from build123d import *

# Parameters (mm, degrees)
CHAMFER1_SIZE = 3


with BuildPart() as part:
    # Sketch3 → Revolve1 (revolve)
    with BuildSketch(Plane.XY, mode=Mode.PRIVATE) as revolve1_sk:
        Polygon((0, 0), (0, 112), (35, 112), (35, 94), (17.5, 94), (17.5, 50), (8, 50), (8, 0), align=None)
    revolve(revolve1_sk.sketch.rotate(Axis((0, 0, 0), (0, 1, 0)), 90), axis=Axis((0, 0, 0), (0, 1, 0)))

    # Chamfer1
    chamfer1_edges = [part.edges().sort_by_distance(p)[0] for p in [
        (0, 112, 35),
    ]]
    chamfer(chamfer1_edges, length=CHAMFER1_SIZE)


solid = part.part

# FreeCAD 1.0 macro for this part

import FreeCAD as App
import Part
import Sketcher
Q = App.Units.Quantity


def edges_at(feature, points):
    """Names of the edges that pass closest to the given points."""
    edges = feature.Shape.Edges
    near = lambda p: min(range(len(edges)), key=lambda i: edges[i].distToShape(Part.Vertex(*p))[0])
    return sorted({f"Edge{near(p) + 1}" for p in points})


def add_polygon(sketch, points):
    """Adds a closed chain of lines whose ends are joined by coincident constraints."""
    first, n = sketch.GeometryCount, len(points)
    for a, b in zip(points, points[1:] + points[:1]):
        sketch.addGeometry(Part.LineSegment(App.Vector(*a, 0), App.Vector(*b, 0)), False)
    for i in range(n):
        sketch.addConstraint(Sketcher.Constraint("Coincident", first + i, 2, first + (i + 1) % n, 1))

doc = App.newDocument("Part")
body = doc.addObject("PartDesign::Body", "Body")

sketch1 = doc.addObject("Sketcher::SketchObject", "Sketch")
body.addObject(sketch1)
sketch1.AttachmentSupport = (doc.XY_Plane, [""])
sketch1.MapMode = "FlatFace"
add_polygon(sketch1, [(0, 112), (0, 0), (8, 0), (8, 50), (18, 50), (18, 94), (35, 94), (35, 112)])
sketch1.addConstraint([
    Sketcher.Constraint("Vertical", 0),
    Sketcher.Constraint("Horizontal", 1),
    Sketcher.Constraint("Vertical", 2),
    Sketcher.Constraint("Horizontal", 3),
    Sketcher.Constraint("Vertical", 4),
    Sketcher.Constraint("Horizontal", 5),
    Sketcher.Constraint("Vertical", 6),
    Sketcher.Constraint("Horizontal", 7),
    Sketcher.Constraint("Coincident", 0, 2, -1, 1),
    Sketcher.Constraint("DistanceX", 1, 1, 1, 2, Q("8 mm")),
    Sketcher.Constraint("DistanceX", 7, 2, 7, 1, Q("35 mm")),
    Sketcher.Constraint("DistanceY", 0, 2, 0, 1, Q("112 mm")),
    Sketcher.Constraint("DistanceY", 2, 1, 2, 2, Q("50 mm")),
    Sketcher.Constraint("DistanceY", 4, 1, 4, 2, Q("44 mm")),
    Sketcher.Constraint("DistanceX", 3, 1, 3, 2, Q("9.5 mm")),
])
revolution = doc.addObject("PartDesign::Revolution", "Revolution")
body.addObject(revolution)
revolution.Profile = sketch1
revolution.ReferenceAxis = (sketch1, ["V_Axis"])
revolution.Angle = 360
doc.recompute()

chamfer = doc.addObject("PartDesign::Chamfer", "Chamfer")
body.addObject(chamfer)
chamfer.Base = (revolution, edges_at(revolution, [(0, 112, 35)]))
chamfer.Size = 3

doc.recompute()
